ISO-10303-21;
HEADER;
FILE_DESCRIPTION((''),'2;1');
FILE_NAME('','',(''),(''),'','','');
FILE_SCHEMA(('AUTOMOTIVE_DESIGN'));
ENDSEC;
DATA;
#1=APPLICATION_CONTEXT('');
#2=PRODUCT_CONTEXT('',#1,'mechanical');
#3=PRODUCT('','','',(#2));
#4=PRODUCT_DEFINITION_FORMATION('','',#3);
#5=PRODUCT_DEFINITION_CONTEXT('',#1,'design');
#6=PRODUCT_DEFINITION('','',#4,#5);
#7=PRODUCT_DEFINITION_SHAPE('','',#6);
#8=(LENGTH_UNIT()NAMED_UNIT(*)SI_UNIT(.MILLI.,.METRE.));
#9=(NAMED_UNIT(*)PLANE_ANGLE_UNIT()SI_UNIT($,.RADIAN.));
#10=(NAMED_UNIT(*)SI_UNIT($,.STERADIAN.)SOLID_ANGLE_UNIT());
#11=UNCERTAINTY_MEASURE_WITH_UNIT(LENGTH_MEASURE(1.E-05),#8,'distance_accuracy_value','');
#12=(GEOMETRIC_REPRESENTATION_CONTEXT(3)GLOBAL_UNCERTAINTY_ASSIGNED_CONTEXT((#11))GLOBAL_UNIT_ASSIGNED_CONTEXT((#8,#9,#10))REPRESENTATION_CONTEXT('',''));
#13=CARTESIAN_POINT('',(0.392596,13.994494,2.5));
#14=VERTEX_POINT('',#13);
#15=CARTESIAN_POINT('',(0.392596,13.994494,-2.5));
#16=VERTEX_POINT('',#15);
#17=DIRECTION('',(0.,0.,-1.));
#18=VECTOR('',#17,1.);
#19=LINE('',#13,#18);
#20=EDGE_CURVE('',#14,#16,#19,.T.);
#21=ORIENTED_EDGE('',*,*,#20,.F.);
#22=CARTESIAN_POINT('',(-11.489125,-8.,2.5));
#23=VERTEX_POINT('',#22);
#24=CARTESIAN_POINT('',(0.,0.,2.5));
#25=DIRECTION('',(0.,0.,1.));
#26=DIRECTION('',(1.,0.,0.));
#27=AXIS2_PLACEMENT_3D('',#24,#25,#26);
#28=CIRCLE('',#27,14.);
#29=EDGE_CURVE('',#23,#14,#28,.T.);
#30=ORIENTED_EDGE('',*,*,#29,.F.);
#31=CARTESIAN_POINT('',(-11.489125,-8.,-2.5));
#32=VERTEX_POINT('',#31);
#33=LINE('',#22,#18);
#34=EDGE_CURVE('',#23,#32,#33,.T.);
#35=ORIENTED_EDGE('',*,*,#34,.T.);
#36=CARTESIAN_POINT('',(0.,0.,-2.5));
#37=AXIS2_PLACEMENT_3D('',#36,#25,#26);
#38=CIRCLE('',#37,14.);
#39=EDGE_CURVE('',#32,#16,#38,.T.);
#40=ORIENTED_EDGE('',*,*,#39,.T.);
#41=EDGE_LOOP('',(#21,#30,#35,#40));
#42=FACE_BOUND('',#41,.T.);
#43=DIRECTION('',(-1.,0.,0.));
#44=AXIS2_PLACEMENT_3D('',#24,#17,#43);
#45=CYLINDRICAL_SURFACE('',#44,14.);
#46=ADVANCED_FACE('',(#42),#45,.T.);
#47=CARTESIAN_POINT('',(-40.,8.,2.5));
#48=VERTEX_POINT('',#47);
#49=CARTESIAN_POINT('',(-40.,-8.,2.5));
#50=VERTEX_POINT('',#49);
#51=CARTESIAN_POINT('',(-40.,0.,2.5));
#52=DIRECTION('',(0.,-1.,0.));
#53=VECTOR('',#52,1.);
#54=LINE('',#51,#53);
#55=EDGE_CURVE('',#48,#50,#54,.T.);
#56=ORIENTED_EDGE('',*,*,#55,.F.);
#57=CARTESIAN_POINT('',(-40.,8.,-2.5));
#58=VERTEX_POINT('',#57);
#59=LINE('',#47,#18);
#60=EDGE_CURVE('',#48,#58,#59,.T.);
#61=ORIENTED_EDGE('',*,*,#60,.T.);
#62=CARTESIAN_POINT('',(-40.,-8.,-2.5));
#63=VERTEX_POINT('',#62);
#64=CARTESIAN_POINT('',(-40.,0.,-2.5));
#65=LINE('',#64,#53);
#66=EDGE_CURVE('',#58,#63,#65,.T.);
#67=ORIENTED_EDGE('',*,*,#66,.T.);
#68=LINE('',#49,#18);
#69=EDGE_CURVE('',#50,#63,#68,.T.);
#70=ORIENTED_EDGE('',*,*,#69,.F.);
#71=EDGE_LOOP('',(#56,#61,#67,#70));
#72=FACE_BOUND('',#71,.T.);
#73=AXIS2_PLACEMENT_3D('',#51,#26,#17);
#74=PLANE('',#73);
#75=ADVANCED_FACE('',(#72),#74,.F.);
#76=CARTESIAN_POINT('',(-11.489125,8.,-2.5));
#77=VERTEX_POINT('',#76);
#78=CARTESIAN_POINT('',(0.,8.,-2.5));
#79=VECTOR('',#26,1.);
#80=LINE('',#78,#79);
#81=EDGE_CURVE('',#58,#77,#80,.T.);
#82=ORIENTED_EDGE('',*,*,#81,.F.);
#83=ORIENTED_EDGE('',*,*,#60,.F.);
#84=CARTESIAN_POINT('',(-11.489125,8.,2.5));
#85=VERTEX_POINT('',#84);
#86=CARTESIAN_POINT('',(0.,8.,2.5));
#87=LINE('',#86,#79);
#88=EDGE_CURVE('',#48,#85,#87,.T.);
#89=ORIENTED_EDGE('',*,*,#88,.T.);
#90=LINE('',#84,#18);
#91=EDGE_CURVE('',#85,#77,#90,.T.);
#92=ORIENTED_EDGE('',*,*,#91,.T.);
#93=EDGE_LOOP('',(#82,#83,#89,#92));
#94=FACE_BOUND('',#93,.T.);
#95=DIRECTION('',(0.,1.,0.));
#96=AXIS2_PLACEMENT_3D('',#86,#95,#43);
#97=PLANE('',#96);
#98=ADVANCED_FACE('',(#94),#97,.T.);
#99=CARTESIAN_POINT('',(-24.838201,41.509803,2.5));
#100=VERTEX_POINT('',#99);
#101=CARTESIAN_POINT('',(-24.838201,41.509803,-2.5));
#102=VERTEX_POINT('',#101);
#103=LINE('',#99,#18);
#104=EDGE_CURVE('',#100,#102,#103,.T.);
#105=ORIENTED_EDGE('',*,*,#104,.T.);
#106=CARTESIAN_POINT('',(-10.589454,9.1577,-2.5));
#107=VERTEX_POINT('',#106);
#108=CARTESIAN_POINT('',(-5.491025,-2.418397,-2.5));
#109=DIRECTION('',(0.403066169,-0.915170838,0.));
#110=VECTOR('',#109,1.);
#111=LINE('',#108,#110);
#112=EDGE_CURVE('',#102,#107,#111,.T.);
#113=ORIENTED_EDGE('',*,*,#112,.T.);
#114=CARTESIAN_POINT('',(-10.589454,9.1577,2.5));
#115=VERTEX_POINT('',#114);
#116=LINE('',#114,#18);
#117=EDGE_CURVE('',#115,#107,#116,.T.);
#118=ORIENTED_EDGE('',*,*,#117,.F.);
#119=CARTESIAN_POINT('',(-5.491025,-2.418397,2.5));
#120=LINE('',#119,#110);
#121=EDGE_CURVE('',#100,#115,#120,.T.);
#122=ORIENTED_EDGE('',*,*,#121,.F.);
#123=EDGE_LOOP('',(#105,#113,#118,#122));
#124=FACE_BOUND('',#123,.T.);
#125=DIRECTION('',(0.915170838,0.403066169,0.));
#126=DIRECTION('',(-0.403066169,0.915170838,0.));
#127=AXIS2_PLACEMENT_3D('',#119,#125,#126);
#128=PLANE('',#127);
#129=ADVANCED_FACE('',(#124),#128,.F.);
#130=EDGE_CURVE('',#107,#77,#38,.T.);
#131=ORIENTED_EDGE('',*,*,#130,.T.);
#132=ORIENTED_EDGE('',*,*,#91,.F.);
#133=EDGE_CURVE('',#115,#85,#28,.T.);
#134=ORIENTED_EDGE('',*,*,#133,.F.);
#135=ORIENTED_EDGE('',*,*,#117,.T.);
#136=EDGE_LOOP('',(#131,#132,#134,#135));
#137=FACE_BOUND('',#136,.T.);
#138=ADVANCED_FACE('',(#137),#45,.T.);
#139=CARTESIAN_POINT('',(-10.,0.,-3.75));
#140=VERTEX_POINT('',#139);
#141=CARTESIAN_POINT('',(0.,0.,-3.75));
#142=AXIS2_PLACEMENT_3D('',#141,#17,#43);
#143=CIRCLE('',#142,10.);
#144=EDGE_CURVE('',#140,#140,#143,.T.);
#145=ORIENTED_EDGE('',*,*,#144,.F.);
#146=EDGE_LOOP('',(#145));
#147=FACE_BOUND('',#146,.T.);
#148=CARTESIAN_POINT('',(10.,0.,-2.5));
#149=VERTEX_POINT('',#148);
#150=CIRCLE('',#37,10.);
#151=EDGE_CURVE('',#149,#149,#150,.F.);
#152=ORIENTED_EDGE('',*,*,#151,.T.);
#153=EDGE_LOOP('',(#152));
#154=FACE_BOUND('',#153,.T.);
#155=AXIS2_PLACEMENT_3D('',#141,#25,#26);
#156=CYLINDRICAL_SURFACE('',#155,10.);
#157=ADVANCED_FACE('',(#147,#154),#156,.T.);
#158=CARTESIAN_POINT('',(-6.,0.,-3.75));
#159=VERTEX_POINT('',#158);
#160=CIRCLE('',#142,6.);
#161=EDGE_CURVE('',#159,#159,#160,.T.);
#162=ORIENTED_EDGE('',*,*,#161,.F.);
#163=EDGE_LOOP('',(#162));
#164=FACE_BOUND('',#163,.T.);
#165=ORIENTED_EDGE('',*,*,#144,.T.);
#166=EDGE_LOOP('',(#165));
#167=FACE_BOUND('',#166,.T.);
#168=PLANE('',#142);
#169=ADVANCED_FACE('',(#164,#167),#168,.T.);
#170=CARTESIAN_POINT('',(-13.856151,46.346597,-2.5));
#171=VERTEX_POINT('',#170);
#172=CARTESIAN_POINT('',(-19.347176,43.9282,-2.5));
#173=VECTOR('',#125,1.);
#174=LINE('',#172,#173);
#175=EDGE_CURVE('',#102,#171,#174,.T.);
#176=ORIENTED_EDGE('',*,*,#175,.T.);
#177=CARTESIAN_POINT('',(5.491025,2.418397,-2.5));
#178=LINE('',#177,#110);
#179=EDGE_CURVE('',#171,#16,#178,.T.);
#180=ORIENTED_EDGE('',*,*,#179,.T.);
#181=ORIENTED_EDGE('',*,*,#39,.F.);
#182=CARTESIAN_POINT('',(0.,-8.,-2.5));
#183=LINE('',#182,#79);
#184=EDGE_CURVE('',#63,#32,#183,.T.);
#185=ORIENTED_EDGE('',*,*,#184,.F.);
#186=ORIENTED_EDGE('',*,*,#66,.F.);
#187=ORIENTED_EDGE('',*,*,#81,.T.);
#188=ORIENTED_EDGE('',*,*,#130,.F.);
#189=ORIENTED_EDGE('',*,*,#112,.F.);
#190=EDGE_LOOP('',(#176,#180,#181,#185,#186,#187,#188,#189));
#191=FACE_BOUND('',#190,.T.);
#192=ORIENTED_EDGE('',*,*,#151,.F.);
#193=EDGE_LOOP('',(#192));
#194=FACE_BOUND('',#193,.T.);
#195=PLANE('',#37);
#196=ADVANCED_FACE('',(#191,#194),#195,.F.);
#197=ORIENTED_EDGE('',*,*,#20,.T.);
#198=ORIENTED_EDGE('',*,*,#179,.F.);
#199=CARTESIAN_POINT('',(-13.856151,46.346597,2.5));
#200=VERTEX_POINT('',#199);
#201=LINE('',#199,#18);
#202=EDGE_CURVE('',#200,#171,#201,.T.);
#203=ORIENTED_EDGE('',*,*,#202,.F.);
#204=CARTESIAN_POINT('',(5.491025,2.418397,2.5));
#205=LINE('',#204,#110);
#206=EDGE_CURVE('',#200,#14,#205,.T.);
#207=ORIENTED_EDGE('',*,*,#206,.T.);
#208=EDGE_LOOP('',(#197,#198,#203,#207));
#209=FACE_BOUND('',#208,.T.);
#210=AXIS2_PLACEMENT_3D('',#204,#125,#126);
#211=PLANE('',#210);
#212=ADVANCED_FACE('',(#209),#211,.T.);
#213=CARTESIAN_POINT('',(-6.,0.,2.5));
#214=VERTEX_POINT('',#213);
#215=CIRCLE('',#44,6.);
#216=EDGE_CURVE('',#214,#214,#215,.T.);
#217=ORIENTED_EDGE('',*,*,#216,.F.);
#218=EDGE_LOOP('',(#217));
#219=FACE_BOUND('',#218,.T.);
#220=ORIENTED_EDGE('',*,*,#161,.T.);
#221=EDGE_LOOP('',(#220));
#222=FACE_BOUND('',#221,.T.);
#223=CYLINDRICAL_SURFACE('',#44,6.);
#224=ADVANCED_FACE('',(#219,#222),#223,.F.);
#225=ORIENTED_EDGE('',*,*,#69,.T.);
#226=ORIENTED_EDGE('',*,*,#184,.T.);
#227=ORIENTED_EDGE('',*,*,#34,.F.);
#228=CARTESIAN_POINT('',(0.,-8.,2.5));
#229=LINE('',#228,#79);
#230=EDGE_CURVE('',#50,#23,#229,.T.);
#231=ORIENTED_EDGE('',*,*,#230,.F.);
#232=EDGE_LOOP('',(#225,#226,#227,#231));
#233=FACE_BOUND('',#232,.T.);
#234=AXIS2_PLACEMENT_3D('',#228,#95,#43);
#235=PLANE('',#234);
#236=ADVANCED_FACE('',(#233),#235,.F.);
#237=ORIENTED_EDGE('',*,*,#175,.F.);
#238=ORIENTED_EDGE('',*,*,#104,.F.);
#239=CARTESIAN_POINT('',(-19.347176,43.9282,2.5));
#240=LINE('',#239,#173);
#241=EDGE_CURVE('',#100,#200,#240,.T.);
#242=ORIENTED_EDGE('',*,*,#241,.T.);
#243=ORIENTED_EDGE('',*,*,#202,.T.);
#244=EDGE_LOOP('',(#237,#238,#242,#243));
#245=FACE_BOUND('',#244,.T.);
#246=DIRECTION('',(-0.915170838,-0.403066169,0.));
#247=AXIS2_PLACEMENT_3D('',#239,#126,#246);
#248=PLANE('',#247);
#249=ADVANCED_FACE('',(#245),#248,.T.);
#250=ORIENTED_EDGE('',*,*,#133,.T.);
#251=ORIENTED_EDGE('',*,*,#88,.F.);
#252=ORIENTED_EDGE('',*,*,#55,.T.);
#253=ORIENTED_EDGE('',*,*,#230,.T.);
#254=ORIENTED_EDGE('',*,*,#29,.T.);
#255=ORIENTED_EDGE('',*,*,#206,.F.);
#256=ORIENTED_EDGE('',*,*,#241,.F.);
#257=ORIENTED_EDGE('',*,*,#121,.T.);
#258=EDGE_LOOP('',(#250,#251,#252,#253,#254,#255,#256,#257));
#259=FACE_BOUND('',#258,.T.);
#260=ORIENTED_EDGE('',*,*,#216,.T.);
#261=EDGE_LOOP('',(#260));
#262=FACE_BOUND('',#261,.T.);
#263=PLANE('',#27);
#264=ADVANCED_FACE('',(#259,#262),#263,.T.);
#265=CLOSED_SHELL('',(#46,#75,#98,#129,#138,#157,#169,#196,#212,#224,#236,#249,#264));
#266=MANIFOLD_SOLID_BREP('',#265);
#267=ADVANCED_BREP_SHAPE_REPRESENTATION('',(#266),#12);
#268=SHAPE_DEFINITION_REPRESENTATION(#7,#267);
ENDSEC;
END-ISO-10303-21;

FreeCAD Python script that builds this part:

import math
import FreeCAD as App
import Part
import Sketcher
from FreeCAD import Vector
Q = App.Units.Quantity

doc = App.newDocument("Part")
body = doc.addObject("PartDesign::Body", "Body")

# Sketch on XY plane
sketch1 = doc.addObject("Sketcher::SketchObject", "Sketch")
body.addObject(sketch1)
sketch1.AttachmentSupport = (doc.XY_Plane, [""])
sketch1.MapMode = "FlatFace"
sketch1.addGeometry([
    Part.ArcOfCircle(Part.Circle(Vector(0, 0, 0), Vector(0, 0, 1), 14), math.radians(139.146933), math.radians(145.150095)),  # 0
    Part.LineSegment(Vector(-11.489125, 8, 0), Vector(-40, 8, 0)),  # 1
    Part.LineSegment(Vector(-40, 8, 0), Vector(-40, -8, 0)),  # 2
    Part.LineSegment(Vector(-40, -8, 0), Vector(-11.489125, -8, 0)),  # 3
    Part.ArcOfCircle(Part.Circle(Vector(0, 0, 0), Vector(0, 0, 1), 14), math.radians(-145.150095), math.radians(0)),  # 4
    Part.ArcOfCircle(Part.Circle(Vector(0, 0, 0), Vector(0, 0, 1), 14), math.radians(0), math.radians(88.393066)),  # 5
    Part.LineSegment(Vector(0.392596, 13.994494, 0), Vector(-13.856151, 46.346597, 0)),  # 6
    Part.LineSegment(Vector(-13.856151, 46.346597, 0), Vector(-24.838201, 41.509803, 0)),  # 7
    Part.LineSegment(Vector(-24.838201, 41.509803, 0), Vector(-10.589454, 9.1577, 0)),  # 8
], False)
sketch1.addConstraint([
    Sketcher.Constraint("Coincident", 0, 2, 1, 1),
    Sketcher.Constraint("Coincident", 1, 2, 2, 1),
    Sketcher.Constraint("Coincident", 2, 2, 3, 1),
    Sketcher.Constraint("Coincident", 3, 2, 4, 1),
    Sketcher.Constraint("Tangent", 4, 2, 5, 1),
    Sketcher.Constraint("Coincident", 5, 2, 6, 1),
    Sketcher.Constraint("Coincident", 6, 2, 7, 1),
    Sketcher.Constraint("Coincident", 7, 2, 8, 1),
    Sketcher.Constraint("Coincident", 8, 2, 0, 1),
    Sketcher.Constraint("Horizontal", 1),
    Sketcher.Constraint("Vertical", 2),
    Sketcher.Constraint("Horizontal", 3),
    Sketcher.Constraint("Coincident", 0, 3, -1, 1),
    Sketcher.Constraint("Coincident", 4, 3, -1, 1),
    Sketcher.Constraint("Equal", 0, 4),
    Sketcher.Constraint("Equal", 4, 5),
    Sketcher.Constraint("PointOnObject", 4, 2, -1),
    Sketcher.Constraint("Perpendicular", 6, 7),
    Sketcher.Constraint("Perpendicular", 7, 8),
    Sketcher.Constraint("Vertical", 0, 2, 3, 2),
    Sketcher.Constraint("Equal", 6, 8),
    Sketcher.Constraint("Radius", 0, Q("14 mm")),
    Sketcher.Constraint("DistanceY", 2, 2, 2, 1, Q("16 mm")),
    Sketcher.Constraint("Distance", 7, Q("12 mm")),
    Sketcher.Constraint("DistanceX", 1, 2, -1, 1, Q("40 mm")),
    Sketcher.Constraint("Angle", 6, Q("113.77 deg")),
    Sketcher.Constraint("DistanceX", 7, 2, -1, 1, Q("24.838201 mm")),
])
pad1 = doc.addObject("PartDesign::Pad", "Pad")
body.addObject(pad1)
pad1.Profile = sketch1
pad1.Length = 5
pad1.Midplane = True

# Sketch on XY plane
sketch2 = doc.addObject("Sketcher::SketchObject", "Sketch001")
body.addObject(sketch2)
sketch2.AttachmentSupport = (doc.XY_Plane, [""])
sketch2.MapMode = "FlatFace"
sketch2.AttachmentOffset = App.Placement(Vector(0, 0, -2.5), App.Rotation())
sketch2.addGeometry(Part.Circle(Vector(0, 0, 0), Vector(0, 0, 1), 10), False)
sketch2.addConstraint([
    Sketcher.Constraint("Coincident", 0, 3, -1, 1),
    Sketcher.Constraint("Diameter", 0, Q("20 mm")),
])
pad2 = doc.addObject("PartDesign::Pad", "Pad001")
body.addObject(pad2)
pad2.Profile = sketch2
pad2.Length = 2.5
pad2.Midplane = True

# Sketch on XY plane
sketch3 = doc.addObject("Sketcher::SketchObject", "Sketch002")
body.addObject(sketch3)
sketch3.AttachmentSupport = (doc.XY_Plane, [""])
sketch3.MapMode = "FlatFace"
sketch3.AttachmentOffset = App.Placement(Vector(0, 0, -3.75), App.Rotation())
sketch3.addGeometry(Part.Circle(Vector(0, 0, 0), Vector(0, 0, 1), 6), False)
sketch3.addConstraint([
    Sketcher.Constraint("Coincident", 0, 3, -1, 1),
    Sketcher.Constraint("Diameter", 0, Q("12 mm")),
])
pocket1 = doc.addObject("PartDesign::Pocket", "Pocket")
body.addObject(pocket1)
pocket1.Profile = sketch3
pocket1.Type = "ThroughAll"
pocket1.Reversed = True

doc.recompute()
